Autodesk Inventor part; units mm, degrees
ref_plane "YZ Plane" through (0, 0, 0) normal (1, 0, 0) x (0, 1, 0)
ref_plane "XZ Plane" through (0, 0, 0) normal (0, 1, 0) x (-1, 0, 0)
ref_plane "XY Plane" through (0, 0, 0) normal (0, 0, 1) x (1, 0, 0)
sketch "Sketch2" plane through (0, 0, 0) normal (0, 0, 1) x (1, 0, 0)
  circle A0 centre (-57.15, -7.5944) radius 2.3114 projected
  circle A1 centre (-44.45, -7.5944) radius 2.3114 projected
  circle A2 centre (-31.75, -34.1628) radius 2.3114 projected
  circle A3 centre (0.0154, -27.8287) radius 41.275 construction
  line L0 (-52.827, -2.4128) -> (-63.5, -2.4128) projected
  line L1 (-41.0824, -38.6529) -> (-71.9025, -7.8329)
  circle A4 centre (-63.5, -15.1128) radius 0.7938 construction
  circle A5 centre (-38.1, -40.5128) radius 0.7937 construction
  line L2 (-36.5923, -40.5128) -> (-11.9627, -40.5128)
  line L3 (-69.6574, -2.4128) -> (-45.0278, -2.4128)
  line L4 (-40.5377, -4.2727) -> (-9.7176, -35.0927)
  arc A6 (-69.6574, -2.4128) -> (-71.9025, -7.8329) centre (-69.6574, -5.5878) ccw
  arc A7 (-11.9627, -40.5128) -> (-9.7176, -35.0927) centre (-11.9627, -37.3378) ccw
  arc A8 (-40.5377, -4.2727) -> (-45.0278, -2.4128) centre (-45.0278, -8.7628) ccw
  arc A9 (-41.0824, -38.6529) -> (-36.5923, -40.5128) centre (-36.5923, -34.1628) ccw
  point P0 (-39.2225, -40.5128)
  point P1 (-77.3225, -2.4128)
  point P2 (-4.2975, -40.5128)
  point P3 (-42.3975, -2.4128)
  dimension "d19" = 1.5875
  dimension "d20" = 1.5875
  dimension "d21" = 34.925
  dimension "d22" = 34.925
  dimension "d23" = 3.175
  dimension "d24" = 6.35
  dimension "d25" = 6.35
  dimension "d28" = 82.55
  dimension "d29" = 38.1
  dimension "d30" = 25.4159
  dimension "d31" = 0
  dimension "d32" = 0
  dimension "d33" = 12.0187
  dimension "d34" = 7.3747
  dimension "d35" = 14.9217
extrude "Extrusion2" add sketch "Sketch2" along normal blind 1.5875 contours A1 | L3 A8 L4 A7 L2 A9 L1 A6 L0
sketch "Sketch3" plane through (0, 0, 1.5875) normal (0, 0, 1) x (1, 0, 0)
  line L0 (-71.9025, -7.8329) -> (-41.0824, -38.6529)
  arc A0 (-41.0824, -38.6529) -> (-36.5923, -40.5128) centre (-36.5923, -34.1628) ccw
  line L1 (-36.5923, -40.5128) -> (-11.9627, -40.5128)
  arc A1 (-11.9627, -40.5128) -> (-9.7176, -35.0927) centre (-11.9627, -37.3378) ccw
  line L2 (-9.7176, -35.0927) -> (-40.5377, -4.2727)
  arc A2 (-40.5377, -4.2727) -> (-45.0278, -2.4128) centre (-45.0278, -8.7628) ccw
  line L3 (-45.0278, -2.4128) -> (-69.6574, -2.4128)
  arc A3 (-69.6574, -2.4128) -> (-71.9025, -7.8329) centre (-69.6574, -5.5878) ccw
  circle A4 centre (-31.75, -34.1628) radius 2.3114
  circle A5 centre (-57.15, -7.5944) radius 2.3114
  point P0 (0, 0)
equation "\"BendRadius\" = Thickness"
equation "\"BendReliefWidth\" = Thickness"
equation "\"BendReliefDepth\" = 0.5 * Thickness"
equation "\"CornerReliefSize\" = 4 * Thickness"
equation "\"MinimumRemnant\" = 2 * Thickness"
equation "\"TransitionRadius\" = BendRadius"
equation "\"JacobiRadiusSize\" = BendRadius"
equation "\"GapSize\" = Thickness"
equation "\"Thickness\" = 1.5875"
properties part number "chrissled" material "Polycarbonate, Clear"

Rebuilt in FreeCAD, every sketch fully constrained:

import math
import FreeCAD as App
import Part
import Sketcher
from FreeCAD import Vector
Q = App.Units.Quantity

doc = App.newDocument("Part")
body = doc.addObject("PartDesign::Body", "Body")

# Sketch on XY plane
sketch1 = doc.addObject("Sketcher::SketchObject", "Sketch")
body.addObject(sketch1)
sketch1.AttachmentSupport = (doc.XY_Plane, [""])
sketch1.MapMode = "FlatFace"
sketch1.addGeometry([
    Part.LineSegment(Vector(-45, -2.4, 0), Vector(-69.7, -2.4, 0)),  # 0
    Part.ArcOfCircle(Part.Circle(Vector(-69.7, -5.6, 0), Vector(0, 0, 1), 3.2), math.radians(90), math.radians(225)),  # 1
    Part.LineSegment(Vector(-71.9, -7.8, 0), Vector(-41.1, -38.7, 0)),  # 2
    Part.ArcOfCircle(Part.Circle(Vector(-36.6, -34.2, 0), Vector(0, 0, 1), 6.3), math.radians(-135), math.radians(-90)),  # 3
    Part.LineSegment(Vector(-36.6, -40.5, 0), Vector(-12, -40.5, 0)),  # 4
    Part.ArcOfCircle(Part.Circle(Vector(-12, -37.3, 0), Vector(0, 0, 1), 3.2), math.radians(-90), math.radians(45)),  # 5
    Part.LineSegment(Vector(-9.7, -35.1, 0), Vector(-40.5, -4.3, 0)),  # 6
    Part.ArcOfCircle(Part.Circle(Vector(-45, -8.8, 0), Vector(0, 0, 1), 6.3), math.radians(45), math.radians(90)),  # 7
    Part.Circle(Vector(-31.8, -34.2, 0), Vector(0, 0, 1), 2.3),  # 8
    Part.Circle(Vector(-57.1, -7.6, 0), Vector(0, 0, 1), 2.3),  # 9
], False)
sketch1.addConstraint([
    Sketcher.Constraint("Tangent", 0, 2, 1, 1),
    Sketcher.Constraint("Tangent", 1, 2, 2, 1),
    Sketcher.Constraint("Tangent", 2, 2, 3, 1),
    Sketcher.Constraint("Tangent", 3, 2, 4, 1),
    Sketcher.Constraint("Tangent", 4, 2, 5, 1),
    Sketcher.Constraint("Tangent", 5, 2, 6, 1),
    Sketcher.Constraint("Tangent", 6, 2, 7, 1),
    Sketcher.Constraint("Tangent", 7, 2, 0, 1),
    Sketcher.Constraint("Horizontal", 0),
    Sketcher.Constraint("Horizontal", 4),
    Sketcher.Constraint("Equal", 1, 5),
    Sketcher.Constraint("Equal", 3, 7),
    Sketcher.Constraint("Equal", 8, 9),
    Sketcher.Constraint("Parallel", 2, 6),
    Sketcher.Constraint("Horizontal", 3, 3, 8, 3),
    Sketcher.Constraint("Radius", 3, Q("0.25 in")),
    Sketcher.Constraint("Radius", 1, Q("0.125 in")),
    Sketcher.Constraint("Diameter", 8, Q("0.182 in")),
    Sketcher.Constraint("Angle", 2, Q("-45 deg")),
    Sketcher.Constraint("DistanceY", 3, 3, 7, 3, Q("1 in")),
    Sketcher.Constraint("DistanceX", 9, 3, 8, 3, Q("1 in")),
    Sketcher.Constraint("DistanceY", 1, 3, -1, 1, Q("0.22 in")),
    Sketcher.Constraint("DistanceX", 8, 3, -1, 1, Q("1.25 in")),
    Sketcher.Constraint("DistanceY", 9, 3, -1, 1, Q("0.299 in")),
    Sketcher.Constraint("DistanceX", 0, 2, 0, 1, Q("24.6296 mm")),
    Sketcher.Constraint("DistanceX", 1, 2, -1, 1, Q("2.8308 in")),
])
pad1 = doc.addObject("PartDesign::Pad", "Pad")
body.addObject(pad1)
pad1.Profile = sketch1
pad1.Length = Q("0.0625 in")

doc.recompute()
